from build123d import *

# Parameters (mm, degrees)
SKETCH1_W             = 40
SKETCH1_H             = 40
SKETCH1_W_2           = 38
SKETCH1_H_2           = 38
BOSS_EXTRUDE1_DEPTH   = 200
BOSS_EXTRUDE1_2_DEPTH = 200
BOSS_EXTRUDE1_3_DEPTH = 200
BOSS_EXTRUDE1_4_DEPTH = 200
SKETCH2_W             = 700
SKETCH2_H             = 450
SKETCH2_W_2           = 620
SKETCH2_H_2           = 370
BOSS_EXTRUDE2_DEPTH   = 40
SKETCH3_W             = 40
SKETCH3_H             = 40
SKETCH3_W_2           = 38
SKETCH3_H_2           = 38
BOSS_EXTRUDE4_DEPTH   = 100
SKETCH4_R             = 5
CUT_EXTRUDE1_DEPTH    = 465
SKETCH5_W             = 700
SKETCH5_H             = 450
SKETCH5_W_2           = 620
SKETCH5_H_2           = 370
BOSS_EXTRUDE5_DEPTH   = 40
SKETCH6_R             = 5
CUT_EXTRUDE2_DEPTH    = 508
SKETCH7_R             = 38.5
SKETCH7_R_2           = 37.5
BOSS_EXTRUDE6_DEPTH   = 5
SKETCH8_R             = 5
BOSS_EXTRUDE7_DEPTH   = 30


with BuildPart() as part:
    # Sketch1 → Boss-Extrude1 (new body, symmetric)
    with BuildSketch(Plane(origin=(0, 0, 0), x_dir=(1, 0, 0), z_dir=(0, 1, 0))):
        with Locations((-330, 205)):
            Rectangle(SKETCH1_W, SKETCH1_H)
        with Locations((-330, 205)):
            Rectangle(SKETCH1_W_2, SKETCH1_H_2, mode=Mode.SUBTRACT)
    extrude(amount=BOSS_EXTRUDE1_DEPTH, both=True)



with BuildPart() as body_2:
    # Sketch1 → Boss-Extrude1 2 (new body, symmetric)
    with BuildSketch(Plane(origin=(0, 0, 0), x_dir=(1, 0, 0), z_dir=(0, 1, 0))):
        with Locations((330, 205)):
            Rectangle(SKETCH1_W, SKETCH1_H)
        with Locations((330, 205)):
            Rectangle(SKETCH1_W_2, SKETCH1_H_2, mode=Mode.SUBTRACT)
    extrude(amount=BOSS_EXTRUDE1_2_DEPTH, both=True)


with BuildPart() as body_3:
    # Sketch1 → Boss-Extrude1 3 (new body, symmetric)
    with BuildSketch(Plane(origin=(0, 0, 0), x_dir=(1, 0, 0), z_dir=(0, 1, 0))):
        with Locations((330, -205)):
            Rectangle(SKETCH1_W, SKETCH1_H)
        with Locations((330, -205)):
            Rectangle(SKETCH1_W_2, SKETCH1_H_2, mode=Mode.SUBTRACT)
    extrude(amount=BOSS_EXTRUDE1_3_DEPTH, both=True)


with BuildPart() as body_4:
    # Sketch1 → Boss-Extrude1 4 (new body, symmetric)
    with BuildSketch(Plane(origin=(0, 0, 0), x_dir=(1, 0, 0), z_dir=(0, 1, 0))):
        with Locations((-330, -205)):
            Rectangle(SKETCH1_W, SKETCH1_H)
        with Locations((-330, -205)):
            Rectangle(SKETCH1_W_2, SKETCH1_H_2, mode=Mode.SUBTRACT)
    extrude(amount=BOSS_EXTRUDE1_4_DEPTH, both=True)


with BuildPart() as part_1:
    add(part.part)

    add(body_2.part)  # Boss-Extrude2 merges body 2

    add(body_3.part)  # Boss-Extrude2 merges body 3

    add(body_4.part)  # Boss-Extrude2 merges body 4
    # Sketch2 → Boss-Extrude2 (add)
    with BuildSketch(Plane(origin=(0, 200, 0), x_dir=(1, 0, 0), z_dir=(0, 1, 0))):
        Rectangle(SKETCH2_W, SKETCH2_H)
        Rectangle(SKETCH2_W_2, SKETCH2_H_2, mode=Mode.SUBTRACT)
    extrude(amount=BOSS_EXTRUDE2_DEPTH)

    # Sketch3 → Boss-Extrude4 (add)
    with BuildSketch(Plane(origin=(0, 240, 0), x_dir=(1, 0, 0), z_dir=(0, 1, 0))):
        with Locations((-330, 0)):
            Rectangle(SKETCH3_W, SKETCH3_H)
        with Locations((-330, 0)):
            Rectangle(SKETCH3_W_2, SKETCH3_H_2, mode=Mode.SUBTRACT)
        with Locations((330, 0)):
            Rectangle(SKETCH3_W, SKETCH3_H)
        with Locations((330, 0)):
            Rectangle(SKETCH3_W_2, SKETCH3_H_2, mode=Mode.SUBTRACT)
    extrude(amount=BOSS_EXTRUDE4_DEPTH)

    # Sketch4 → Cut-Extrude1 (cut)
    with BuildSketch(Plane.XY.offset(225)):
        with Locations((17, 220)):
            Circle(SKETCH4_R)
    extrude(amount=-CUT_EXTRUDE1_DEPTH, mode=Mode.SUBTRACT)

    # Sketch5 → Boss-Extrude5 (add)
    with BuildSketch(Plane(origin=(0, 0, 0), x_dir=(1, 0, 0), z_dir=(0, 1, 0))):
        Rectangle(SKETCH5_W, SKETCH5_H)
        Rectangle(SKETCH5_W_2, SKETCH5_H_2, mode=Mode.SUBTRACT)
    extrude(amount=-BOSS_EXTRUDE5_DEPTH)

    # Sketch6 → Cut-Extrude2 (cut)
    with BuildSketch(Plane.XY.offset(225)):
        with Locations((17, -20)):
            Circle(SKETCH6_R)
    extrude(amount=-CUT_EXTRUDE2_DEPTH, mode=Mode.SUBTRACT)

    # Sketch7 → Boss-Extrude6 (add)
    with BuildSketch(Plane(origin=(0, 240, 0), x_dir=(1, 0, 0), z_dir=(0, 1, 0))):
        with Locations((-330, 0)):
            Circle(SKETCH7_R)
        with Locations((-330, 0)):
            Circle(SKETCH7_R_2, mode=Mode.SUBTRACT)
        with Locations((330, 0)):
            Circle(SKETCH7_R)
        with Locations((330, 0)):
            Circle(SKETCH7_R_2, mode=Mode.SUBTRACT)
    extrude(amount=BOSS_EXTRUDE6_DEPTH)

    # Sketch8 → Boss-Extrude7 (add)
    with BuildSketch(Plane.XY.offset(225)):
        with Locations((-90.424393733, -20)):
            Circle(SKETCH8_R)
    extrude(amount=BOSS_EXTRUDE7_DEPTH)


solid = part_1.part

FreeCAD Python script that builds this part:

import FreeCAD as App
import Part
import Sketcher
from FreeCAD import Vector
Q = App.Units.Quantity


def add_polygon(sketch, points):
    """Adds a closed chain of lines whose ends are joined by coincident constraints."""
    first, n = sketch.GeometryCount, len(points)
    for a, b in zip(points, points[1:] + points[:1]):
        sketch.addGeometry(Part.LineSegment(App.Vector(*a, 0), App.Vector(*b, 0)), False)
    for i in range(n):
        sketch.addConstraint(Sketcher.Constraint("Coincident", first + i, 2, first + (i + 1) % n, 1))

doc = App.newDocument("Part")
body = doc.addObject("PartDesign::Body", "Body")

sketch1 = body.newObject("Sketcher::SketchObject", "Sketch")
sketch1.AttachmentSupport = (doc.getObject("XZ_Plane"), [""])
sketch1.MapMode = "FlatFace"
add_polygon(sketch1, [(-350, -225), (-350, -185), (-310, -185), (-310, -225)])
add_polygon(sketch1, [(-311, -186), (-349, -186), (-349, -224), (-311, -224)])
sketch1.addConstraint([
    Sketcher.Constraint("Vertical", 0),
    Sketcher.Constraint("Horizontal", 1),
    Sketcher.Constraint("Vertical", 2),
    Sketcher.Constraint("Horizontal", 3),
    Sketcher.Constraint("Horizontal", 4),
    Sketcher.Constraint("Vertical", 5),
    Sketcher.Constraint("Horizontal", 6),
    Sketcher.Constraint("Vertical", 7),
    Sketcher.Constraint("Equal", 3, 0),
    Sketcher.Constraint("Equal", 6, 5),
    Sketcher.Constraint("DistanceX", 1, 1, 1, 2, Q("40 mm")),
    Sketcher.Constraint("DistanceX", 4, 2, 4, 1, Q("38 mm")),
    Sketcher.Constraint("DistanceX", 0, 2, -1, 1, Q("350 mm")),
    Sketcher.Constraint("DistanceY", 0, 2, -1, 1, Q("185 mm")),
    Sketcher.Constraint("DistanceX", 4, 2, -1, 1, Q("349 mm")),
    Sketcher.Constraint("DistanceY", 4, 2, -1, 1, Q("186 mm")),
])
pad1 = body.newObject("PartDesign::Pad", "Pad")
pad1.Profile = sketch1
pad1.Length = 400
pad1.Midplane = True
body2 = doc.addObject("PartDesign::Body", "Body001")

sketch2 = body2.newObject("Sketcher::SketchObject", "Sketch001")
sketch2.AttachmentSupport = (doc.getObject("XZ_Plane001"), [""])
sketch2.MapMode = "FlatFace"
add_polygon(sketch2, [(310, -225), (310, -185), (350, -185), (350, -225)])
add_polygon(sketch2, [(349, -186), (311, -186), (311, -224), (349, -224)])
sketch2.addConstraint([
    Sketcher.Constraint("Vertical", 0),
    Sketcher.Constraint("Horizontal", 1),
    Sketcher.Constraint("Vertical", 2),
    Sketcher.Constraint("Horizontal", 3),
    Sketcher.Constraint("Horizontal", 4),
    Sketcher.Constraint("Vertical", 5),
    Sketcher.Constraint("Horizontal", 6),
    Sketcher.Constraint("Vertical", 7),
    Sketcher.Constraint("Equal", 3, 0),
    Sketcher.Constraint("Equal", 6, 5),
    Sketcher.Constraint("DistanceX", 1, 1, 1, 2, Q("40 mm")),
    Sketcher.Constraint("DistanceX", 4, 2, 4, 1, Q("38 mm")),
    Sketcher.Constraint("DistanceX", -1, 1, 0, 2, Q("310 mm")),
    Sketcher.Constraint("DistanceY", 0, 2, -1, 1, Q("185 mm")),
    Sketcher.Constraint("DistanceX", -1, 1, 4, 2, Q("311 mm")),
    Sketcher.Constraint("DistanceY", 4, 2, -1, 1, Q("186 mm")),
])
pad2 = body2.newObject("PartDesign::Pad", "Pad001")
pad2.Profile = sketch2
pad2.Length = 400
pad2.Midplane = True
body3 = doc.addObject("PartDesign::Body", "Body002")

sketch3 = body3.newObject("Sketcher::SketchObject", "Sketch002")
sketch3.AttachmentSupport = (doc.getObject("XZ_Plane002"), [""])
sketch3.MapMode = "FlatFace"
add_polygon(sketch3, [(310, 185), (310, 225), (350, 225), (350, 185)])
add_polygon(sketch3, [(349, 224), (311, 224), (311, 186), (349, 186)])
sketch3.addConstraint([
    Sketcher.Constraint("Vertical", 0),
    Sketcher.Constraint("Horizontal", 1),
    Sketcher.Constraint("Vertical", 2),
    Sketcher.Constraint("Horizontal", 3),
    Sketcher.Constraint("Horizontal", 4),
    Sketcher.Constraint("Vertical", 5),
    Sketcher.Constraint("Horizontal", 6),
    Sketcher.Constraint("Vertical", 7),
    Sketcher.Constraint("Equal", 3, 0),
    Sketcher.Constraint("Equal", 6, 5),
    Sketcher.Constraint("DistanceX", 1, 1, 1, 2, Q("40 mm")),
    Sketcher.Constraint("DistanceX", 4, 2, 4, 1, Q("38 mm")),
    Sketcher.Constraint("DistanceX", -1, 1, 0, 2, Q("310 mm")),
    Sketcher.Constraint("DistanceY", -1, 1, 0, 2, Q("225 mm")),
    Sketcher.Constraint("DistanceX", -1, 1, 4, 2, Q("311 mm")),
    Sketcher.Constraint("DistanceY", -1, 1, 4, 2, Q("224 mm")),
])
pad3 = body3.newObject("PartDesign::Pad", "Pad002")
pad3.Profile = sketch3
pad3.Length = 400
pad3.Midplane = True
body4 = doc.addObject("PartDesign::Body", "Body003")

sketch4 = body4.newObject("Sketcher::SketchObject", "Sketch003")
sketch4.AttachmentSupport = (doc.getObject("XZ_Plane003"), [""])
sketch4.MapMode = "FlatFace"
add_polygon(sketch4, [(-350, 185), (-350, 225), (-310, 225), (-310, 185)])
add_polygon(sketch4, [(-311, 224), (-349, 224), (-349, 186), (-311, 186)])
sketch4.addConstraint([
    Sketcher.Constraint("Vertical", 0),
    Sketcher.Constraint("Horizontal", 1),
    Sketcher.Constraint("Vertical", 2),
    Sketcher.Constraint("Horizontal", 3),
    Sketcher.Constraint("Horizontal", 4),
    Sketcher.Constraint("Vertical", 5),
    Sketcher.Constraint("Horizontal", 6),
    Sketcher.Constraint("Vertical", 7),
    Sketcher.Constraint("Equal", 3, 0),
    Sketcher.Constraint("Equal", 6, 5),
    Sketcher.Constraint("DistanceX", 1, 1, 1, 2, Q("40 mm")),
    Sketcher.Constraint("DistanceX", 4, 2, 4, 1, Q("38 mm")),
    Sketcher.Constraint("DistanceX", 0, 2, -1, 1, Q("350 mm")),
    Sketcher.Constraint("DistanceY", -1, 1, 0, 2, Q("225 mm")),
    Sketcher.Constraint("DistanceX", 4, 2, -1, 1, Q("349 mm")),
    Sketcher.Constraint("DistanceY", -1, 1, 4, 2, Q("224 mm")),
])
pad4 = body4.newObject("PartDesign::Pad", "Pad003")
pad4.Profile = sketch4
pad4.Length = 400
pad4.Midplane = True
body.AllowCompound = True
doc.recompute()

boolean = body.newObject("PartDesign::Boolean", "Boolean")
boolean.Type = "Fuse"
boolean.addObjects([body2])
doc.recompute()

boolean2 = body.newObject("PartDesign::Boolean", "Boolean001")
boolean2.Type = "Fuse"
boolean2.addObjects([body3])
doc.recompute()

boolean3 = body.newObject("PartDesign::Boolean", "Boolean002")
boolean3.Type = "Fuse"
boolean3.addObjects([body4])

sketch5 = body.newObject("Sketcher::SketchObject", "Sketch004")
sketch5.AttachmentSupport = (doc.getObject("XZ_Plane"), [""])
sketch5.MapMode = "FlatFace"
sketch5.AttachmentOffset = App.Placement(Vector(0, 0, -200), App.Rotation())
add_polygon(sketch5, [(-350, -225), (-350, 225), (350, 225), (350, -225)])
add_polygon(sketch5, [(310, 185), (-310, 185), (-310, -185), (310, -185)])
sketch5.addConstraint([
    Sketcher.Constraint("Vertical", 0),
    Sketcher.Constraint("Horizontal", 1),
    Sketcher.Constraint("Vertical", 2),
    Sketcher.Constraint("Horizontal", 3),
    Sketcher.Constraint("Horizontal", 4),
    Sketcher.Constraint("Vertical", 5),
    Sketcher.Constraint("Horizontal", 6),
    Sketcher.Constraint("Vertical", 7),
    Sketcher.Constraint("Symmetric", 0, 2, 2, 2, -1, 1),
    Sketcher.Constraint("Symmetric", 4, 2, 6, 2, -1, 1),
    Sketcher.Constraint("DistanceX", 1, 1, 1, 2, Q("700 mm")),
    Sketcher.Constraint("DistanceX", 4, 2, 4, 1, Q("620 mm")),
    Sketcher.Constraint("DistanceY", 0, 1, 0, 2, Q("450 mm")),
    Sketcher.Constraint("DistanceY", 5, 2, 5, 1, Q("370 mm")),
])
pad5 = body.newObject("PartDesign::Pad", "Pad004")
pad5.Profile = sketch5
pad5.Length = 40
pad5.Reversed = True

sketch6 = body.newObject("Sketcher::SketchObject", "Sketch005")
sketch6.AttachmentSupport = (doc.getObject("XZ_Plane"), [""])
sketch6.MapMode = "FlatFace"
sketch6.AttachmentOffset = App.Placement(Vector(0, 0, -240), App.Rotation())
add_polygon(sketch6, [(-350, -20), (-350, 20), (-310, 20), (-310, -20)])
add_polygon(sketch6, [(-311, 19), (-349, 19), (-349, -19), (-311, -19)])
add_polygon(sketch6, [(310, -20), (310, 20), (350, 20), (350, -20)])
add_polygon(sketch6, [(349, 19), (311, 19), (311, -19), (349, -19)])
sketch6.addConstraint([
    Sketcher.Constraint("Vertical", 0),
    Sketcher.Constraint("Horizontal", 1),
    Sketcher.Constraint("Vertical", 2),
    Sketcher.Constraint("Horizontal", 3),
    Sketcher.Constraint("Horizontal", 4),
    Sketcher.Constraint("Vertical", 5),
    Sketcher.Constraint("Horizontal", 6),
    Sketcher.Constraint("Vertical", 7),
    Sketcher.Constraint("Vertical", 8),
    Sketcher.Constraint("Horizontal", 9),
    Sketcher.Constraint("Vertical", 10),
    Sketcher.Constraint("Horizontal", 11),
    Sketcher.Constraint("Horizontal", 12),
    Sketcher.Constraint("Vertical", 13),
    Sketcher.Constraint("Horizontal", 14),
    Sketcher.Constraint("Vertical", 15),
    Sketcher.Constraint("Symmetric", 2, 2, 8, 2, -1, 1),
    Sketcher.Constraint("Symmetric", 0, 2, 10, 2, -1, 1),
    Sketcher.Constraint("Symmetric", 6, 2, 12, 2, -1, 1),
    Sketcher.Constraint("Symmetric", 4, 2, 14, 2, -1, 1),
    Sketcher.Constraint("Horizontal", 1, 2, 8, 2),
    Sketcher.Constraint("Horizontal", 7, 2, 12, 2),
    Sketcher.Constraint("Equal", 11, 0),
    Sketcher.Constraint("Equal", 14, 5),
    Sketcher.Constraint("DistanceX", 1, 1, 1, 2, Q("40 mm")),
    Sketcher.Constraint("DistanceX", 4, 2, 4, 1, Q("38 mm")),
    Sketcher.Constraint("DistanceX", 0, 2, -1, 1, Q("350 mm")),
    Sketcher.Constraint("DistanceX", 4, 2, -1, 1, Q("349 mm")),
])
pad6 = body.newObject("PartDesign::Pad", "Pad005")
pad6.Profile = sketch6
pad6.Length = 100
pad6.Reversed = True

sketch7 = body.newObject("Sketcher::SketchObject", "Sketch006")
sketch7.AttachmentSupport = (doc.getObject("XY_Plane"), [""])
sketch7.MapMode = "FlatFace"
sketch7.AttachmentOffset = App.Placement(Vector(0, 0, 225), App.Rotation())
sketch7.addGeometry(Part.Circle(Vector(17, 220, 0), Vector(0, 0, 1), 5), False)
sketch7.addConstraint([
    Sketcher.Constraint("Diameter", 0, Q("10 mm")),
    Sketcher.Constraint("DistanceX", -1, 1, 0, 3, Q("17 mm")),
    Sketcher.Constraint("DistanceY", -1, 1, 0, 3, Q("220 mm")),
])
pocket1 = body.newObject("PartDesign::Pocket", "Pocket")
pocket1.Profile = sketch7
pocket1.Length = 465

sketch8 = body.newObject("Sketcher::SketchObject", "Sketch007")
sketch8.AttachmentSupport = (doc.getObject("XZ_Plane"), [""])
sketch8.MapMode = "FlatFace"
add_polygon(sketch8, [(-350, -225), (-350, 225), (350, 225), (350, -225)])
add_polygon(sketch8, [(310, 185), (-310, 185), (-310, -185), (310, -185)])
sketch8.addConstraint([
    Sketcher.Constraint("Vertical", 0),
    Sketcher.Constraint("Horizontal", 1),
    Sketcher.Constraint("Vertical", 2),
    Sketcher.Constraint("Horizontal", 3),
    Sketcher.Constraint("Horizontal", 4),
    Sketcher.Constraint("Vertical", 5),
    Sketcher.Constraint("Horizontal", 6),
    Sketcher.Constraint("Vertical", 7),
    Sketcher.Constraint("Symmetric", 0, 2, 2, 2, -1, 1),
    Sketcher.Constraint("Symmetric", 4, 2, 6, 2, -1, 1),
    Sketcher.Constraint("DistanceX", 1, 1, 1, 2, Q("700 mm")),
    Sketcher.Constraint("DistanceX", 4, 2, 4, 1, Q("620 mm")),
    Sketcher.Constraint("DistanceY", 0, 1, 0, 2, Q("450 mm")),
    Sketcher.Constraint("DistanceY", 5, 2, 5, 1, Q("370 mm")),
])
pad7 = body.newObject("PartDesign::Pad", "Pad006")
pad7.Profile = sketch8
pad7.Length = 40

sketch9 = body.newObject("Sketcher::SketchObject", "Sketch008")
sketch9.AttachmentSupport = (doc.getObject("XY_Plane"), [""])
sketch9.MapMode = "FlatFace"
sketch9.AttachmentOffset = App.Placement(Vector(0, 0, 225), App.Rotation())
sketch9.addGeometry(Part.Circle(Vector(17, -20, 0), Vector(0, 0, 1), 5), False)
sketch9.addConstraint([
    Sketcher.Constraint("Diameter", 0, Q("10 mm")),
    Sketcher.Constraint("DistanceX", -1, 1, 0, 3, Q("17 mm")),
    Sketcher.Constraint("DistanceY", 0, 3, -1, 1, Q("20 mm")),
])
pocket2 = body.newObject("PartDesign::Pocket", "Pocket001")
pocket2.Profile = sketch9
pocket2.Length = 508

sketch10 = body.newObject("Sketcher::SketchObject", "Sketch009")
sketch10.AttachmentSupport = (doc.getObject("XZ_Plane"), [""])
sketch10.MapMode = "FlatFace"
sketch10.AttachmentOffset = App.Placement(Vector(0, 0, -240), App.Rotation())
sketch10.addGeometry([
    Part.Circle(Vector(-330, 0, 0), Vector(0, 0, 1), 38.5),
    Part.Circle(Vector(-330, 0, 0), Vector(0, 0, 1), 37.5),
    Part.Circle(Vector(330, 0, 0), Vector(0, 0, 1), 38.5),
    Part.Circle(Vector(330, 0, 0), Vector(0, 0, 1), 37.5),
], False)
sketch10.addConstraint([
    Sketcher.Constraint("Coincident", 1, 3, 0, 3),
    Sketcher.Constraint("Coincident", 3, 3, 2, 3),
    Sketcher.Constraint("Equal", 0, 2),
    Sketcher.Constraint("Equal", 1, 3),
    Sketcher.Constraint("Symmetric", 0, 3, 2, 3, -1, 1),
    Sketcher.Constraint("PointOnObject", 0, 3, -1),
    Sketcher.Constraint("Diameter", 0, Q("77 mm")),
    Sketcher.Constraint("Diameter", 1, Q("75 mm")),
    Sketcher.Constraint("DistanceX", 0, 3, -1, 1, Q("330 mm")),
])
pad8 = body.newObject("PartDesign::Pad", "Pad007")
pad8.Profile = sketch10
pad8.Length = 5
pad8.Reversed = True

sketch11 = body.newObject("Sketcher::SketchObject", "Sketch010")
sketch11.AttachmentSupport = (doc.getObject("XY_Plane"), [""])
sketch11.MapMode = "FlatFace"
sketch11.AttachmentOffset = App.Placement(Vector(0, 0, 225), App.Rotation())
sketch11.addGeometry(Part.Circle(Vector(-90.424394, -20, 0), Vector(0, 0, 1), 5), False)
sketch11.addConstraint([
    Sketcher.Constraint("Diameter", 0, Q("10 mm")),
    Sketcher.Constraint("DistanceY", 0, 3, -1, 1, Q("20 mm")),
    Sketcher.Constraint("DistanceX", 0, 3, -1, 1, Q("90.424394 mm")),
])
pad9 = body.newObject("PartDesign::Pad", "Pad008")
pad9.Profile = sketch11
pad9.Length = 30

doc.recompute()
